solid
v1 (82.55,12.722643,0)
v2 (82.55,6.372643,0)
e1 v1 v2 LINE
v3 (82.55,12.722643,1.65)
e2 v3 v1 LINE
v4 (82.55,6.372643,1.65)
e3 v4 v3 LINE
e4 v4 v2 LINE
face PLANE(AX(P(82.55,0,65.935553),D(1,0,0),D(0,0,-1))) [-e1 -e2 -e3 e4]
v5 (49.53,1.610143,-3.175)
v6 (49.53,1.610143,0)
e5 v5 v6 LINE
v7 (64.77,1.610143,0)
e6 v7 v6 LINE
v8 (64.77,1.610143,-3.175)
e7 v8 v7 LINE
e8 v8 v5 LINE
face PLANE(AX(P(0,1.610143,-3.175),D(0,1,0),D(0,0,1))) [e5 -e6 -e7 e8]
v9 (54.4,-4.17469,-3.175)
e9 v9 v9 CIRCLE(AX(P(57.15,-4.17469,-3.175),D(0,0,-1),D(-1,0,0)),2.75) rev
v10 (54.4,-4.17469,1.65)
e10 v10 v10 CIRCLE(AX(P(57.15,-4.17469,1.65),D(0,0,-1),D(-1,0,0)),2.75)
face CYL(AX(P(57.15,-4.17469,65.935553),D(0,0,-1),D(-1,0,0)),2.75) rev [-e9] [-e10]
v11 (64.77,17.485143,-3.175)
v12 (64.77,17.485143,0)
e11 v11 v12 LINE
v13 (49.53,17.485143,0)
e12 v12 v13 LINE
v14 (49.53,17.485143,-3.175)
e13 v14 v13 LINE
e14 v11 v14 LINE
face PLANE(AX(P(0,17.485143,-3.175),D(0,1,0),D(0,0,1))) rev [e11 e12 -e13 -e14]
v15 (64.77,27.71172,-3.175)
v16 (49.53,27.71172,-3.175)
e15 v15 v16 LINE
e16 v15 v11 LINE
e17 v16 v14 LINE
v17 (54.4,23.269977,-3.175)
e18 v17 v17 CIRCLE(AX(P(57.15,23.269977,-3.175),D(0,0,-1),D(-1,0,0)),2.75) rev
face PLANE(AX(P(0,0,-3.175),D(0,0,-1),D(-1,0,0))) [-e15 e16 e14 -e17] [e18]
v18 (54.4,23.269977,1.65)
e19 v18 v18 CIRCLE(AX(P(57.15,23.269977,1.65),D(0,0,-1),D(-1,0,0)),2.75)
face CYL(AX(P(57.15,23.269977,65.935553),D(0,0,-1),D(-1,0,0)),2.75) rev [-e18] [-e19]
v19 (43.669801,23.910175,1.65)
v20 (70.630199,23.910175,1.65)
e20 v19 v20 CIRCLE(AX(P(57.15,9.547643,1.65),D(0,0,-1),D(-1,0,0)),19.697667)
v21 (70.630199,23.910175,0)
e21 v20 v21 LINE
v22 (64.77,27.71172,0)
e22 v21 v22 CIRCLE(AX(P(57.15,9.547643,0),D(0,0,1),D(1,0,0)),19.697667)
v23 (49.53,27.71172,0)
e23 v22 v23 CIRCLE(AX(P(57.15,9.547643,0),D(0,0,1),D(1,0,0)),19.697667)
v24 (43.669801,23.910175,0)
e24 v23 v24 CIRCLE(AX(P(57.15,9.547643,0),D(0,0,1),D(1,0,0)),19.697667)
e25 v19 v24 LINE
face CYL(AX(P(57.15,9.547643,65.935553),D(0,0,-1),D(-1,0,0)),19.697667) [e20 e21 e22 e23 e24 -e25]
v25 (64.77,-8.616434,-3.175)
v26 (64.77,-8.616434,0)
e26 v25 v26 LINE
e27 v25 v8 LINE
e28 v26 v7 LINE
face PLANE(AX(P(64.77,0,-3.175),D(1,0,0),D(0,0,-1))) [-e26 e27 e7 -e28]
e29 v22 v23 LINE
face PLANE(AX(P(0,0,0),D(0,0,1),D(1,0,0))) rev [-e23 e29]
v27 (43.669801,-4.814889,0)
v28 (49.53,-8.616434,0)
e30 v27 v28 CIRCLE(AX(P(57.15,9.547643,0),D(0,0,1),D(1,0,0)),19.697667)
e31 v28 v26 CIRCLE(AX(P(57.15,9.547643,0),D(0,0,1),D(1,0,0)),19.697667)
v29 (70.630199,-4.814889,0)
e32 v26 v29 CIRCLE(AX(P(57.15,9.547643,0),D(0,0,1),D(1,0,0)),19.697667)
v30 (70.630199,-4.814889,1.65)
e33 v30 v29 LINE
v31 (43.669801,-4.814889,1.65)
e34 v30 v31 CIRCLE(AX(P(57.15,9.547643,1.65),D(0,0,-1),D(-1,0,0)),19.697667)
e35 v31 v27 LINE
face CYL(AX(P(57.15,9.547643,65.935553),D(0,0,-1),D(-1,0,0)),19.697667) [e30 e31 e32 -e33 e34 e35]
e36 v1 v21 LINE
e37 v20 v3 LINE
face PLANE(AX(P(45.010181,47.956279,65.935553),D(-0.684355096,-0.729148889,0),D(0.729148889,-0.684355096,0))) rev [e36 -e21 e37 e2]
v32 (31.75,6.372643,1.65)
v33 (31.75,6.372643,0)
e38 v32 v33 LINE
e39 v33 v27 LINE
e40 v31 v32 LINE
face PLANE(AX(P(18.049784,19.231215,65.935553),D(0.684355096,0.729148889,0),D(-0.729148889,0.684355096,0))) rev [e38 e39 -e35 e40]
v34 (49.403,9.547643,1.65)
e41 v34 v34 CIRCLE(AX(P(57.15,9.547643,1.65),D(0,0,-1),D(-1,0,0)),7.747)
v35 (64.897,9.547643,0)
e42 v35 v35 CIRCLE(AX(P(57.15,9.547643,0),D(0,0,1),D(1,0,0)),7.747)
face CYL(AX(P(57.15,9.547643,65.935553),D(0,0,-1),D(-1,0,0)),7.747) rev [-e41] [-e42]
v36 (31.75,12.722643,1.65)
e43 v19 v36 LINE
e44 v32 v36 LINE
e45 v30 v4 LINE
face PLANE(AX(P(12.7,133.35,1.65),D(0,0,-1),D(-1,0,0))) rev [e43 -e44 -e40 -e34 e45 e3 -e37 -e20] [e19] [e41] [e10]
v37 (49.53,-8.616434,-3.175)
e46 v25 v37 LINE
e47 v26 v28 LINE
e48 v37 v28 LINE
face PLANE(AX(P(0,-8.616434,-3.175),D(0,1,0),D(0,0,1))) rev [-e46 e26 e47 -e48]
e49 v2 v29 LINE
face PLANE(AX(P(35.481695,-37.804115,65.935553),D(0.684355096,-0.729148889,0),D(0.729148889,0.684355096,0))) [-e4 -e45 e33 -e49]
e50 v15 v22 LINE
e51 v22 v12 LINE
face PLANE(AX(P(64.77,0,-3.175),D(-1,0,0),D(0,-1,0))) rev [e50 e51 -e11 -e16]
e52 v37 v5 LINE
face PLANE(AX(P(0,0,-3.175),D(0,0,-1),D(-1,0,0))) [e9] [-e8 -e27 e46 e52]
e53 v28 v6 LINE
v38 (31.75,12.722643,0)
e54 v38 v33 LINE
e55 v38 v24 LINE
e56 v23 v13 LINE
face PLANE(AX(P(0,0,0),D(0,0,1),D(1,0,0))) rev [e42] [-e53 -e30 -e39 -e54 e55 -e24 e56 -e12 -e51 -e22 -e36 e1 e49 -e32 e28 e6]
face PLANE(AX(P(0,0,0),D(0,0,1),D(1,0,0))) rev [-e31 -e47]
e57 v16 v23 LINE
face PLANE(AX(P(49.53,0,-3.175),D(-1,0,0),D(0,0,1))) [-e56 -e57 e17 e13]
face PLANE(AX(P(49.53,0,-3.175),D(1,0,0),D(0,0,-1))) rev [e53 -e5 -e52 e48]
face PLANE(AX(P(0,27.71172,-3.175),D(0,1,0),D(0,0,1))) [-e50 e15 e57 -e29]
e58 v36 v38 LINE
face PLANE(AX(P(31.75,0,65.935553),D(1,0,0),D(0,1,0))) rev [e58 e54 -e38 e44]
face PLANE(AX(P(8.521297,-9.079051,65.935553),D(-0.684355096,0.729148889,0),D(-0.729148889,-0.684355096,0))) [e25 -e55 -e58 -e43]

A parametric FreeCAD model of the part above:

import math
import FreeCAD as App
import Part
import Sketcher

V = App.Vector
Q = App.Units.Quantity

doc = App.newDocument("Part")
body = doc.addObject("PartDesign::Body", "Body")

# Sketch on XY plane
sketch1 = body.newObject("Sketcher::SketchObject", "Sketch")
sketch1.AttachmentSupport = (doc.getObject("XY_Plane"), [""])
sketch1.MapMode = "FlatFace"
sketch1.addGeometry([
    Part.LineSegment(V(43.7, 23.9, 0), V(31.8, 12.7, 0)),  # 0
    Part.LineSegment(V(31.8, 12.7, 0), V(31.8, 6.4, 0)),  # 1
    Part.LineSegment(V(31.8, 6.4, 0), V(43.7, -4.8, 0)),  # 2
    Part.ArcOfCircle(Part.Circle(V(57.1, 9.5, 0), V(0, 0, 1), 19.7), math.radians(-133), math.radians(-90)),  # 3
    Part.ArcOfCircle(Part.Circle(V(57.1, 9.5, 0), V(0, 0, 1), 19.7), math.radians(-90), math.radians(-47)),  # 4
    Part.LineSegment(V(70.6, -4.8, 0), V(82.5, 6.4, 0)),  # 5
    Part.LineSegment(V(82.5, 6.4, 0), V(82.5, 12.7, 0)),  # 6
    Part.LineSegment(V(82.5, 12.7, 0), V(70.6, 23.9, 0)),  # 7
    Part.ArcOfCircle(Part.Circle(V(57.1, 9.5, 0), V(0, 0, 1), 19.7), math.radians(47), math.radians(133)),  # 8
    Part.Circle(V(57.1, -4.2, 0), V(0, 0, 1), 2.8),  # 9
    Part.Circle(V(57.1, 9.5, 0), V(0, 0, 1), 7.7),  # 10
    Part.Circle(V(57.1, 23.3, 0), V(0, 0, 1), 2.8),  # 11
], False)
sketch1.addConstraint([
    Sketcher.Constraint("Coincident", 0, 2, 1, 1),
    Sketcher.Constraint("Coincident", 1, 2, 2, 1),
    Sketcher.Constraint("Tangent", 2, 2, 3, 1),
    Sketcher.Constraint("Tangent", 3, 2, 4, 1),
    Sketcher.Constraint("Tangent", 4, 2, 5, 1),
    Sketcher.Constraint("Coincident", 5, 2, 6, 1),
    Sketcher.Constraint("Coincident", 6, 2, 7, 1),
    Sketcher.Constraint("Tangent", 7, 2, 8, 1),
    Sketcher.Constraint("Tangent", 8, 2, 0, 1),
    Sketcher.Constraint("Vertical", 1),
    Sketcher.Constraint("Vertical", 6),
    Sketcher.Constraint("Coincident", 8, 3, 3, 3),
    Sketcher.Constraint("Coincident", 10, 3, 3, 3),
    Sketcher.Constraint("Equal", 3, 4),
    Sketcher.Constraint("Equal", 4, 8),
    Sketcher.Constraint("Equal", 9, 11),
    Sketcher.Constraint("Parallel", 0, 5),
    Sketcher.Constraint("Parallel", 2, 7),
    Sketcher.Constraint("Horizontal", 2, 2, 4, 2),
    Sketcher.Constraint("Horizontal", 1, 2, 5, 2),
    Sketcher.Constraint("Vertical", 8, 3, 9, 3),
    Sketcher.Constraint("Vertical", 10, 3, 11, 3),
    Sketcher.Constraint("Vertical", 11, 3, 3, 2),
    Sketcher.Constraint("Diameter", 10, Q("0.61 in")),
    Sketcher.Constraint("DistanceX", 0, 2, 8, 3, Q("1 in")),
    Sketcher.Constraint("DistanceY", 1, 2, 1, 1, Q("0.25 in")),
    Sketcher.Constraint("Diameter", 9, 5.5),
    Sketcher.Constraint("DistanceX", -1, 1, 3, 3, Q("2.25 in")),
    Sketcher.Constraint("Radius", 3, 19.697667),
    Sketcher.Constraint("DistanceY", 2, 2, 9, 3, 0.640199),
    Sketcher.Constraint("DistanceY", 11, 3, 7, 2, 0.640199),
    Sketcher.Constraint("DistanceY", 9, 3, -1, 1, 4.17469),
])
pad1 = body.newObject("PartDesign::Pad", "Pad")
pad1.Profile = sketch1
pad1.Length = 1.65

# Sketch on XY plane
sketch2 = body.newObject("Sketcher::SketchObject", "Sketch001")
sketch2.AttachmentSupport = (doc.getObject("XY_Plane"), [""])
sketch2.MapMode = "FlatFace"
sketch2.AttachmentOffset = App.Placement(V(0, 0, -0.125 * 25.4), App.Rotation())
sketch2.addGeometry([
    Part.LineSegment(V(64.8, 27.7, 0), V(64.8, 17.5, 0)),  # 0
    Part.LineSegment(V(64.8, 17.5, 0), V(49.5, 17.5, 0)),  # 1
    Part.LineSegment(V(49.5, 17.5, 0), V(49.5, 27.7, 0)),  # 2
    Part.LineSegment(V(49.5, 27.7, 0), V(64.8, 27.7, 0)),  # 3
    Part.Circle(V(57.1, 23.3, 0), V(0, 0, 1), 2.8),  # 4
    Part.LineSegment(V(64.8, 1.6, 0), V(64.8, -8.6, 0)),  # 5
    Part.LineSegment(V(64.8, -8.6, 0), V(49.5, -8.6, 0)),  # 6
    Part.LineSegment(V(49.5, -8.6, 0), V(49.5, 1.6, 0)),  # 7
    Part.LineSegment(V(49.5, 1.6, 0), V(64.8, 1.6, 0)),  # 8
    Part.Circle(V(57.1, -4.2, 0), V(0, 0, 1), 2.8),  # 9
], False)
sketch2.addConstraint([
    Sketcher.Constraint("Coincident", 0, 2, 1, 1),
    Sketcher.Constraint("Coincident", 1, 2, 2, 1),
    Sketcher.Constraint("Coincident", 2, 2, 3, 1),
    Sketcher.Constraint("Coincident", 3, 2, 0, 1),
    Sketcher.Constraint("Coincident", 5, 2, 6, 1),
    Sketcher.Constraint("Coincident", 6, 2, 7, 1),
    Sketcher.Constraint("Coincident", 7, 2, 8, 1),
    Sketcher.Constraint("Coincident", 8, 2, 5, 1),
    Sketcher.Constraint("Vertical", 0),
    Sketcher.Constraint("Horizontal", 1),
    Sketcher.Constraint("Vertical", 2),
    Sketcher.Constraint("Horizontal", 3),
    Sketcher.Constraint("Vertical", 5),
    Sketcher.Constraint("Horizontal", 6),
    Sketcher.Constraint("Vertical", 7),
    Sketcher.Constraint("Horizontal", 8),
    Sketcher.Constraint("Equal", 4, 9),
    Sketcher.Constraint("Vertical", 4, 3, 9, 3),
    Sketcher.Constraint("Vertical", 3, 2, 5, 2),
    Sketcher.Constraint("Vertical", 2, 2, 6, 2),
    Sketcher.Constraint("Equal", 2, 5),
    Sketcher.Constraint("DistanceX", 1, 2, 1, 1, Q("0.6 in")),
    Sketcher.Constraint("DistanceX", 4, 3, 0, 2, Q("0.3 in")),
    Sketcher.Constraint("Diameter", 4, 5.5),
    Sketcher.Constraint("DistanceX", -1, 1, 4, 3, Q("2.25 in")),
    Sketcher.Constraint("DistanceY", 7, 2, 1, 2, Q("0.625 in")),
    Sketcher.Constraint("DistanceY", 0, 2, 0, 1, 10.226577),
    Sketcher.Constraint("DistanceY", 9, 3, -1, 1, 4.17469),
    Sketcher.Constraint("DistanceY", -1, 1, 2, 2, 27.71172),
    Sketcher.Constraint("DistanceY", 5, 2, 4, 3, 31.886411),
])
pad2 = body.newObject("PartDesign::Pad", "Pad001")
pad2.Profile = sketch2
pad2.Length = Q("0.125 in")

doc.recompute()
